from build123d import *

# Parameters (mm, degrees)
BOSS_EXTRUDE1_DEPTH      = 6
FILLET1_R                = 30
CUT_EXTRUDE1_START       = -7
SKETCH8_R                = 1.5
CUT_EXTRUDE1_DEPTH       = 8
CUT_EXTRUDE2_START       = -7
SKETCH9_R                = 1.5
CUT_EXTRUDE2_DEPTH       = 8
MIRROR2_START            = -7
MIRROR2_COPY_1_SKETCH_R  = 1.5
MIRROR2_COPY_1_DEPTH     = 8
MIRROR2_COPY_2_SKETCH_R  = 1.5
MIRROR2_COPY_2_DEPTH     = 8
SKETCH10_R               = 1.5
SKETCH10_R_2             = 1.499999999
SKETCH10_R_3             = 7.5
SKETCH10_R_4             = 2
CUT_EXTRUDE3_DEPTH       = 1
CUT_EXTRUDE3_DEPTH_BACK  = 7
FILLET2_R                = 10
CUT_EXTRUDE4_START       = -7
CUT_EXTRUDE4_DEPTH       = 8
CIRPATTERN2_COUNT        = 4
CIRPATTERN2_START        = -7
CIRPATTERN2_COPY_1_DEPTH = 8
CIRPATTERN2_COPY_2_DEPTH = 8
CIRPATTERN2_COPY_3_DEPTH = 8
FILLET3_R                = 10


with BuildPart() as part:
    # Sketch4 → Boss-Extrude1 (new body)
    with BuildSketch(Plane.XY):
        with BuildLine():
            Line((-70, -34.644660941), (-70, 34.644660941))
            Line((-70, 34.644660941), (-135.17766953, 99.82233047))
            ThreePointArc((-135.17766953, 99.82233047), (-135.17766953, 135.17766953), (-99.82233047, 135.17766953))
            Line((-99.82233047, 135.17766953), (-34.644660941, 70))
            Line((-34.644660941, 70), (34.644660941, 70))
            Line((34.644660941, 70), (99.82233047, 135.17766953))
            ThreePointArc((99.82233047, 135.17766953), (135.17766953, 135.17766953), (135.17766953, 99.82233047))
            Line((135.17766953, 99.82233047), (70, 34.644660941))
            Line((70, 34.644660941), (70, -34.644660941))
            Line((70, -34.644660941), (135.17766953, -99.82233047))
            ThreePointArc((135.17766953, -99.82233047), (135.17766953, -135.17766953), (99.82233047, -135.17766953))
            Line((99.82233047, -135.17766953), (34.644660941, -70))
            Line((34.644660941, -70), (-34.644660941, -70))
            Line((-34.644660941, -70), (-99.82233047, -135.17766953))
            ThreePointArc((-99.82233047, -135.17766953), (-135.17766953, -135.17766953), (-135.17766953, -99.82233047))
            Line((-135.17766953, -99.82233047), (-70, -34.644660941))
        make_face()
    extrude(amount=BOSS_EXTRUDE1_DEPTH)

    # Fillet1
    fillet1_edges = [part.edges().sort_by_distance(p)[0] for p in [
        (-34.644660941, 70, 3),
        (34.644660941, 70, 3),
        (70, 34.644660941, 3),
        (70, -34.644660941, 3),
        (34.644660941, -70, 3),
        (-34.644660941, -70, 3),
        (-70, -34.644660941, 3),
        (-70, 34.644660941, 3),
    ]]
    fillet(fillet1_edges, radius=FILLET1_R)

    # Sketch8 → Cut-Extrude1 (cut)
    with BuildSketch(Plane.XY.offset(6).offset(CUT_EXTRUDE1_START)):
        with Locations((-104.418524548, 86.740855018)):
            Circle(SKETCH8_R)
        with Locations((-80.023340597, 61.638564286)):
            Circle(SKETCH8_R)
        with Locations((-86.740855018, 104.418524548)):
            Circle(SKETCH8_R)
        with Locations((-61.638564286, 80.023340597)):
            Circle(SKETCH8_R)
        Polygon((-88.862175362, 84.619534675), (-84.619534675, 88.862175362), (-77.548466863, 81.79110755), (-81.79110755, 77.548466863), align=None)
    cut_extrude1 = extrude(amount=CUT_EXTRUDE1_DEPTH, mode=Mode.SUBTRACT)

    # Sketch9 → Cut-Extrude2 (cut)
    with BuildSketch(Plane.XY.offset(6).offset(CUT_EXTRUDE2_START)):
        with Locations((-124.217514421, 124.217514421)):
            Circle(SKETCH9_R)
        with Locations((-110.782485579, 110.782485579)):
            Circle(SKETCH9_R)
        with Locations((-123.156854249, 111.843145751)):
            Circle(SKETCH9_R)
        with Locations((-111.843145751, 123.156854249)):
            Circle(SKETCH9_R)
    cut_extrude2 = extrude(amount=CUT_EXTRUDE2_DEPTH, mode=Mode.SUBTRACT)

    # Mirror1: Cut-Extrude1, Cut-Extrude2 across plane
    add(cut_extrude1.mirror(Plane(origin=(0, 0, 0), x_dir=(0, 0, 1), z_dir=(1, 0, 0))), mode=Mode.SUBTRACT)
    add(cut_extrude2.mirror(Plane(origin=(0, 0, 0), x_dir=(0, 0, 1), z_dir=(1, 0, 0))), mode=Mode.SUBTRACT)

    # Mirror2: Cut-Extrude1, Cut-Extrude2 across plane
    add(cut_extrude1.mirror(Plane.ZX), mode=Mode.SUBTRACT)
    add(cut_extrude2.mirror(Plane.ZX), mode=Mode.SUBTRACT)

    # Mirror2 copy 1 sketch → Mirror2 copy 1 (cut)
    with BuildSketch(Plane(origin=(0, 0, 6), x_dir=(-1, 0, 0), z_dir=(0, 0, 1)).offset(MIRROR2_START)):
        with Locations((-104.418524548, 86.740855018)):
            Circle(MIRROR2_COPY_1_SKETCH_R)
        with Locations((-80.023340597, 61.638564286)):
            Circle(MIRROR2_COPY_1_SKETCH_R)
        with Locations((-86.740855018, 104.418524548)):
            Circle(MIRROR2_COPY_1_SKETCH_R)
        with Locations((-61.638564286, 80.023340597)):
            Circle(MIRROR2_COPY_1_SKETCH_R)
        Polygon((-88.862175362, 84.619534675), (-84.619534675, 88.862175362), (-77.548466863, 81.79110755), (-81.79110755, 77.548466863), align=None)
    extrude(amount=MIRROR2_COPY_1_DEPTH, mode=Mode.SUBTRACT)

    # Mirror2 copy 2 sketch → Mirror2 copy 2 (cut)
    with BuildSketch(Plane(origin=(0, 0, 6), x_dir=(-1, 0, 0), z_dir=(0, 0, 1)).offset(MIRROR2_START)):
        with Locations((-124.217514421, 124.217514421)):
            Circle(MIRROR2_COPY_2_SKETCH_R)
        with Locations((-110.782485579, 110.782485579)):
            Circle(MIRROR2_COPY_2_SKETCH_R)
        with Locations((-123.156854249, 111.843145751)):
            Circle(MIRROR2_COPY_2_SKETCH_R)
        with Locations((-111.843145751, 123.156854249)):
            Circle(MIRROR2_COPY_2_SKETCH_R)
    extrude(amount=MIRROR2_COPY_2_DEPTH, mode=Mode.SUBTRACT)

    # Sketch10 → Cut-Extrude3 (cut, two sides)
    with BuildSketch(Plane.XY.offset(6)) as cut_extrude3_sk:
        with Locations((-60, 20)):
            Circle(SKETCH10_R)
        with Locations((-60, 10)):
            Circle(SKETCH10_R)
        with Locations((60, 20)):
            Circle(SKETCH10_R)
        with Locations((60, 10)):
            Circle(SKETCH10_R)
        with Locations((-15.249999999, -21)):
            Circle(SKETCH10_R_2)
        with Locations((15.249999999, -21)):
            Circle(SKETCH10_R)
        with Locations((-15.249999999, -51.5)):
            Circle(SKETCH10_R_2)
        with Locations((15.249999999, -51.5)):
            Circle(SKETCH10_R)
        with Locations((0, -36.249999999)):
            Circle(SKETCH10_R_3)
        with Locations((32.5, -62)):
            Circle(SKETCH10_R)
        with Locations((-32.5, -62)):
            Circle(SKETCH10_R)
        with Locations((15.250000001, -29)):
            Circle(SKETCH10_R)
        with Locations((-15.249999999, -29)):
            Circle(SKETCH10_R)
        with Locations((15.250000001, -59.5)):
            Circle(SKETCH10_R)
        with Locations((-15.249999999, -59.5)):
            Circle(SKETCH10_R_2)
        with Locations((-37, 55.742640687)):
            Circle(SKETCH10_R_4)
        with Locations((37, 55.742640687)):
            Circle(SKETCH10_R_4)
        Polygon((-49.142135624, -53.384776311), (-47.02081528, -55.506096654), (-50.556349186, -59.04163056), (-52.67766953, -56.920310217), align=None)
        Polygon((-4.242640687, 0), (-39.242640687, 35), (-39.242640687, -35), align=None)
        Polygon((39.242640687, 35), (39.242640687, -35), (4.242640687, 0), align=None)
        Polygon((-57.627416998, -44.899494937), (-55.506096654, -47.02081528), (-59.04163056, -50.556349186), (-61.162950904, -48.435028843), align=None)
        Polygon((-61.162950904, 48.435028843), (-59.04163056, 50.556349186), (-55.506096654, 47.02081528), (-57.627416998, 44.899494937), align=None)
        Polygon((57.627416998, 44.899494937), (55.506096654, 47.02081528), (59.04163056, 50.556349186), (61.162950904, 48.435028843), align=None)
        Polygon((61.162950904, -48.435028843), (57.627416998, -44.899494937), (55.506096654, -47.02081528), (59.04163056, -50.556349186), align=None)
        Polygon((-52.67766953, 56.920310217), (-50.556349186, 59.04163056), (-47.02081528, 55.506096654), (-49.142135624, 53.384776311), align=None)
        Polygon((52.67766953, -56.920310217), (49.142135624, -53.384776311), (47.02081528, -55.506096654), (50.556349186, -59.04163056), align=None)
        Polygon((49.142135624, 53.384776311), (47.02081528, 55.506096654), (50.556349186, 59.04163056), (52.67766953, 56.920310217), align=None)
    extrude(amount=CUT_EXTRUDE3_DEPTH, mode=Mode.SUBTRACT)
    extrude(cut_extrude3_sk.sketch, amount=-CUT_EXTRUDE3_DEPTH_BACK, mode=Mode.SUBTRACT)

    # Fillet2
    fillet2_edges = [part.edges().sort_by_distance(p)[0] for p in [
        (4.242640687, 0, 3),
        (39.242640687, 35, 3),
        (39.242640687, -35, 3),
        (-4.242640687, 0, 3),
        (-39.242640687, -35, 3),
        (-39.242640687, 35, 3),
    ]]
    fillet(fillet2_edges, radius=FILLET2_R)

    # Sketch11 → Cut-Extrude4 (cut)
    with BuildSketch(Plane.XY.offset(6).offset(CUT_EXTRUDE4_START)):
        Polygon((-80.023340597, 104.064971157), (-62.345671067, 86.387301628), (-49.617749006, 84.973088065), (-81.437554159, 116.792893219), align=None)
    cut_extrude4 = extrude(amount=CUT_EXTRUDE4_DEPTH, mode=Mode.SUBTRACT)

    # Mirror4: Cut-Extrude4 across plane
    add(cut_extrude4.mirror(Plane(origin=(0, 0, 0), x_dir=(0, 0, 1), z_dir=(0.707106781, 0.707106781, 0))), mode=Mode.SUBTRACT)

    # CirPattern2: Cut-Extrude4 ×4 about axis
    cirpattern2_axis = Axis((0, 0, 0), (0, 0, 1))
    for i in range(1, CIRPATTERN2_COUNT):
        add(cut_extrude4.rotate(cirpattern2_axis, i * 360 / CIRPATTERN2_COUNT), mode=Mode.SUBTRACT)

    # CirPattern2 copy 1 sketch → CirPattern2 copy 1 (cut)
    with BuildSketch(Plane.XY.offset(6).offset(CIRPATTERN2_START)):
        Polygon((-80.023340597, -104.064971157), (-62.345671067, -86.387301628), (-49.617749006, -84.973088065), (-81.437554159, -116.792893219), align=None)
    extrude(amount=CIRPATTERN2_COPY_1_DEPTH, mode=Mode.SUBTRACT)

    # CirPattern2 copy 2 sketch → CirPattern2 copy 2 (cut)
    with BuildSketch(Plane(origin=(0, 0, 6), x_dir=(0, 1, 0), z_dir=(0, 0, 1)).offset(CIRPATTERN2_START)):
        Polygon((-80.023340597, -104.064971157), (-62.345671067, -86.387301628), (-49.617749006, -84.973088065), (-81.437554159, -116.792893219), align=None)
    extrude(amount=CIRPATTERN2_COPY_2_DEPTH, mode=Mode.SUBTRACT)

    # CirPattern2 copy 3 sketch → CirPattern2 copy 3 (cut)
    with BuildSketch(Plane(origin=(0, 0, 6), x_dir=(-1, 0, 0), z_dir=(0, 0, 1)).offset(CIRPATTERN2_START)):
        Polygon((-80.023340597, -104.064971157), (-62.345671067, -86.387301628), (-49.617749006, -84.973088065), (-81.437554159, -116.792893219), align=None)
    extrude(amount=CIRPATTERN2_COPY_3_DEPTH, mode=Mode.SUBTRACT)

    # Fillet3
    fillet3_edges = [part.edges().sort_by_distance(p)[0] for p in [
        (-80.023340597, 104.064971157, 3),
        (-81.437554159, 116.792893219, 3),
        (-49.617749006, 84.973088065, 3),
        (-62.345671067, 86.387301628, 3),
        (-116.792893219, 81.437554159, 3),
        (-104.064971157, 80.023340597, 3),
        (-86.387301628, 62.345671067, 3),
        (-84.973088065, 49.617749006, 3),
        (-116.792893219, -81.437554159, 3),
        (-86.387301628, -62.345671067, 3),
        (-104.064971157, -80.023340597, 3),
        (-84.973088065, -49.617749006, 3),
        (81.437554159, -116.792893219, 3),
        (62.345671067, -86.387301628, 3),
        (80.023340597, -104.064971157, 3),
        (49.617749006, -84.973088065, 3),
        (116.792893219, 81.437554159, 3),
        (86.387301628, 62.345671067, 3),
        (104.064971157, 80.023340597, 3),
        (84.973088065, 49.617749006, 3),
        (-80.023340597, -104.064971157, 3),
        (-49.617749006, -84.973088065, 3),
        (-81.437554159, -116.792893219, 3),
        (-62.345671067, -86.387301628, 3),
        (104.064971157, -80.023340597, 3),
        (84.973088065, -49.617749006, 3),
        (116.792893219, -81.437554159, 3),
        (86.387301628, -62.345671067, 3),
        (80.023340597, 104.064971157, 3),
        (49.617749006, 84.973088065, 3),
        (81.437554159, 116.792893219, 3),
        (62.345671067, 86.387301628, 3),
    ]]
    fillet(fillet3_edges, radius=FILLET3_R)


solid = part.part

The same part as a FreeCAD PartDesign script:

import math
import FreeCAD as App
import Part
import Sketcher
from FreeCAD import Vector
Q = App.Units.Quantity


def edges_at(feature, points):
    """Names of the edges that pass closest to the given points."""
    edges = feature.Shape.Edges
    near = lambda p: min(range(len(edges)), key=lambda i: edges[i].distToShape(Part.Vertex(*p))[0])
    return sorted({f"Edge{near(p) + 1}" for p in points})

doc = App.newDocument("Part")
body = doc.addObject("PartDesign::Body", "Body")

sketch1 = body.newObject("Sketcher::SketchObject", "Sketch")
sketch1.AttachmentSupport = (doc.getObject("XY_Plane"), [""])
sketch1.MapMode = "FlatFace"
sketch1.addGeometry([
    Part.LineSegment(Vector(-70, 35, 0), Vector(-70, -35, 0)),
    Part.LineSegment(Vector(-70, -35, 0), Vector(-135, -100, 0)),
    Part.ArcOfCircle(Part.Circle(Vector(-118, -118, 0), Vector(0, 0, 1), 25), math.radians(135), math.radians(315)),
    Part.LineSegment(Vector(-100, -135, 0), Vector(-35, -70, 0)),
    Part.LineSegment(Vector(-35, -70, 0), Vector(35, -70, 0)),
    Part.LineSegment(Vector(35, -70, 0), Vector(100, -135, 0)),
    Part.ArcOfCircle(Part.Circle(Vector(118, -118, 0), Vector(0, 0, 1), 25), math.radians(-135), math.radians(45)),
    Part.LineSegment(Vector(135, -100, 0), Vector(70, -35, 0)),
    Part.LineSegment(Vector(70, -35, 0), Vector(70, 35, 0)),
    Part.LineSegment(Vector(70, 35, 0), Vector(135, 100, 0)),
    Part.ArcOfCircle(Part.Circle(Vector(118, 118, 0), Vector(0, 0, 1), 25), math.radians(-45), math.radians(135)),
    Part.LineSegment(Vector(100, 135, 0), Vector(35, 70, 0)),
    Part.LineSegment(Vector(35, 70, 0), Vector(-35, 70, 0)),
    Part.LineSegment(Vector(-35, 70, 0), Vector(-100, 135, 0)),
    Part.ArcOfCircle(Part.Circle(Vector(-118, 118, 0), Vector(0, 0, 1), 25), math.radians(45), math.radians(225)),
    Part.LineSegment(Vector(-135, 100, 0), Vector(-70, 35, 0)),
], False)
sketch1.addConstraint([
    Sketcher.Constraint("Coincident", 0, 2, 1, 1),
    Sketcher.Constraint("Tangent", 1, 2, 2, 1),
    Sketcher.Constraint("Tangent", 2, 2, 3, 1),
    Sketcher.Constraint("Coincident", 3, 2, 4, 1),
    Sketcher.Constraint("Coincident", 4, 2, 5, 1),
    Sketcher.Constraint("Tangent", 5, 2, 6, 1),
    Sketcher.Constraint("Tangent", 6, 2, 7, 1),
    Sketcher.Constraint("Coincident", 7, 2, 8, 1),
    Sketcher.Constraint("Coincident", 8, 2, 9, 1),
    Sketcher.Constraint("Tangent", 9, 2, 10, 1),
    Sketcher.Constraint("Tangent", 10, 2, 11, 1),
    Sketcher.Constraint("Coincident", 11, 2, 12, 1),
    Sketcher.Constraint("Coincident", 12, 2, 13, 1),
    Sketcher.Constraint("Tangent", 13, 2, 14, 1),
    Sketcher.Constraint("Tangent", 14, 2, 15, 1),
    Sketcher.Constraint("Coincident", 15, 2, 0, 1),
    Sketcher.Constraint("Vertical", 0),
    Sketcher.Constraint("Horizontal", 4),
    Sketcher.Constraint("Vertical", 8),
    Sketcher.Constraint("Horizontal", 12),
    Sketcher.Constraint("Equal", 2, 6),
    Sketcher.Constraint("Equal", 6, 10),
    Sketcher.Constraint("Equal", 10, 14),
    Sketcher.Constraint("Symmetric", 2, 3, 10, 3, -1, 1),
    Sketcher.Constraint("Symmetric", 6, 3, 14, 3, -1, 1),
    Sketcher.Constraint("Symmetric", 0, 2, 8, 2, -1, 1),
    Sketcher.Constraint("Symmetric", 3, 2, 11, 2, -1, 1),
    Sketcher.Constraint("Symmetric", 2, 3, 6, 3, -2),
    Sketcher.Constraint("Parallel", 1, 3),
    Sketcher.Constraint("Perpendicular", 3, 5),
    Sketcher.Constraint("Parallel", 5, 7),
    Sketcher.Constraint("Perpendicular", 11, 13),
    Sketcher.Constraint("Parallel", 13, 15),
    Sketcher.Constraint("Horizontal", 2, 2, 5, 2),
    Sketcher.Constraint("Equal", 12, 0),
    Sketcher.Constraint("Equal", 1, 3),
    Sketcher.Constraint("Radius", 2, Q("25 mm")),
    Sketcher.Constraint("DistanceX", 0, 2, -1, 1, Q("70 mm")),
    Sketcher.Constraint("DistanceX", 2, 3, 6, 3, Q("235 mm")),
])
pad1 = body.newObject("PartDesign::Pad", "Pad")
pad1.Profile = sketch1
pad1.Length = 6
doc.recompute()

fillet = body.newObject("PartDesign::Fillet", "Fillet")
fillet.Base = (pad1, edges_at(pad1, [
    (-34.645, 70, 3),
    (34.645, 70, 3),
    (70, 34.645, 3),
    (70, -34.645, 3),
    (34.645, -70, 3),
    (-34.645, -70, 3),
    (-70, -34.645, 3),
    (-70, 34.645, 3),
]))
fillet.Radius = 30

sketch2 = body.newObject("Sketcher::SketchObject", "Sketch001")
sketch2.AttachmentSupport = (doc.getObject("XY_Plane"), [""])
sketch2.MapMode = "FlatFace"
sketch2.AttachmentOffset = App.Placement(Vector(0, 0, -1), App.Rotation())
sketch2.addGeometry([
    Part.Circle(Vector(-104.4, 86.7, 0), Vector(0, 0, 1), 1.5),
    Part.Circle(Vector(-80, 61.6, 0), Vector(0, 0, 1), 1.5),
    Part.Circle(Vector(-86.7, 104.4, 0), Vector(0, 0, 1), 1.5),
    Part.Circle(Vector(-61.6, 80, 0), Vector(0, 0, 1), 1.5),
    Part.LineSegment(Vector(-84.6, 88.9, 0), Vector(-88.9, 84.6, 0)),
    Part.LineSegment(Vector(-88.9, 84.6, 0), Vector(-81.8, 77.5, 0)),
    Part.LineSegment(Vector(-81.8, 77.5, 0), Vector(-77.5, 81.8, 0)),
    Part.LineSegment(Vector(-77.5, 81.8, 0), Vector(-84.6, 88.9, 0)),
], False)
sketch2.addConstraint([
    Sketcher.Constraint("Coincident", 4, 2, 5, 1),
    Sketcher.Constraint("Coincident", 5, 2, 6, 1),
    Sketcher.Constraint("Coincident", 6, 2, 7, 1),
    Sketcher.Constraint("Coincident", 7, 2, 4, 1),
    Sketcher.Constraint("Equal", 0, 1),
    Sketcher.Constraint("Equal", 1, 2),
    Sketcher.Constraint("Equal", 2, 3),
    Sketcher.Constraint("Perpendicular", 4, 5),
    Sketcher.Constraint("Perpendicular", 5, 6),
    Sketcher.Constraint("Perpendicular", 6, 7),
    Sketcher.Constraint("Diameter", 0, Q("3 mm")),
    Sketcher.Constraint("Angle", 4, Q("-135 deg")),
    Sketcher.Constraint("Distance", 4, Q("6 mm")),
    Sketcher.Constraint("Distance", 5, Q("10 mm")),
    Sketcher.Constraint("DistanceX", 1, 3, -1, 1, Q("80.023341 mm")),
    Sketcher.Constraint("DistanceY", -1, 1, 3, 3, Q("80.023341 mm")),
    Sketcher.Constraint("DistanceY", 1, 3, 0, 3, Q("25.102291 mm")),
    Sketcher.Constraint("DistanceX", 0, 3, 2, 3, Q("17.67767 mm")),
    Sketcher.Constraint("DistanceY", 0, 3, 2, 3, Q("17.67767 mm")),
    Sketcher.Constraint("DistanceX", 2, 3, 3, 3, Q("25.102291 mm")),
    Sketcher.Constraint("DistanceX", 0, 3, 4, 2, Q("15.556349 mm")),
    Sketcher.Constraint("DistanceY", 4, 2, 0, 3, Q("2.12132 mm")),
    Sketcher.Constraint("DistanceX", 0, 3, -1, 1, Q("104.418525 mm")),
    Sketcher.Constraint("DistanceY", -1, 1, 0, 3, Q("86.740855 mm")),
])
pocket1 = body.newObject("PartDesign::Pocket", "Pocket")
pocket1.Profile = sketch2
pocket1.Length = 8
pocket1.Reversed = True

sketch3 = body.newObject("Sketcher::SketchObject", "Sketch002")
sketch3.AttachmentSupport = (doc.getObject("XY_Plane"), [""])
sketch3.MapMode = "FlatFace"
sketch3.AttachmentOffset = App.Placement(Vector(0, 0, -1), App.Rotation())
sketch3.addGeometry([
    Part.Circle(Vector(-124.2, 124.2, 0), Vector(0, 0, 1), 1.5),
    Part.Circle(Vector(-110.8, 110.8, 0), Vector(0, 0, 1), 1.5),
    Part.Circle(Vector(-123.2, 111.8, 0), Vector(0, 0, 1), 1.5),
    Part.Circle(Vector(-111.8, 123.2, 0), Vector(0, 0, 1), 1.5),
], False)
sketch3.addConstraint([
    Sketcher.Constraint("Equal", 0, 1),
    Sketcher.Constraint("Equal", 1, 2),
    Sketcher.Constraint("Equal", 2, 3),
    Sketcher.Constraint("Diameter", 0, Q("3 mm")),
    Sketcher.Constraint("DistanceX", 0, 3, 1, 3, Q("13.435029 mm")),
    Sketcher.Constraint("DistanceY", 1, 3, 0, 3, Q("13.435029 mm")),
    Sketcher.Constraint("DistanceX", 0, 3, 2, 3, Q("1.06066 mm")),
    Sketcher.Constraint("DistanceY", 2, 3, 0, 3, Q("12.374369 mm")),
    Sketcher.Constraint("DistanceX", 0, 3, 3, 3, Q("12.374369 mm")),
    Sketcher.Constraint("DistanceY", 3, 3, 0, 3, Q("1.06066 mm")),
    Sketcher.Constraint("DistanceX", 0, 3, -1, 1, Q("124.217514 mm")),
    Sketcher.Constraint("DistanceY", -1, 1, 0, 3, Q("124.217514 mm")),
])
pocket2 = body.newObject("PartDesign::Pocket", "Pocket001")
pocket2.Profile = sketch3
pocket2.Length = 8
pocket2.Reversed = True
doc.recompute()

mirrored = body.newObject("PartDesign::Mirrored", "Mirrored")
mirrored.Originals = [pocket1, pocket2]
mirrored.MirrorPlane = (doc.getObject("YZ_Plane"), [""])
body.Tip = mirrored
doc.recompute()

mirrored2 = body.newObject("PartDesign::Mirrored", "Mirrored001")
mirrored2.Originals = [pocket1, pocket2]
mirrored2.MirrorPlane = (doc.getObject("XZ_Plane"), [""])
body.Tip = mirrored2

sketch4 = body.newObject("Sketcher::SketchObject", "Sketch003")
sketch4.AttachmentSupport = (doc.getObject("XY_Plane"), [""])
sketch4.MapMode = "FlatFace"
sketch4.AttachmentOffset = App.Placement(Vector(0, 0, -1), App.Rotation())
sketch4.addGeometry([
    Part.Circle(Vector(104.4, -86.7, 0), Vector(0, 0, 1), 1.5),
    Part.Circle(Vector(80, -61.6, 0), Vector(0, 0, 1), 1.5),
    Part.Circle(Vector(86.7, -104.4, 0), Vector(0, 0, 1), 1.5),
    Part.Circle(Vector(61.6, -80, 0), Vector(0, 0, 1), 1.5),
    Part.LineSegment(Vector(84.6, -88.9, 0), Vector(88.9, -84.6, 0)),
    Part.LineSegment(Vector(88.9, -84.6, 0), Vector(81.8, -77.5, 0)),
    Part.LineSegment(Vector(81.8, -77.5, 0), Vector(77.5, -81.8, 0)),
    Part.LineSegment(Vector(77.5, -81.8, 0), Vector(84.6, -88.9, 0)),
], False)
sketch4.addConstraint([
    Sketcher.Constraint("Coincident", 4, 2, 5, 1),
    Sketcher.Constraint("Coincident", 5, 2, 6, 1),
    Sketcher.Constraint("Coincident", 6, 2, 7, 1),
    Sketcher.Constraint("Coincident", 7, 2, 4, 1),
    Sketcher.Constraint("Equal", 0, 1),
    Sketcher.Constraint("Equal", 1, 2),
    Sketcher.Constraint("Equal", 2, 3),
    Sketcher.Constraint("Perpendicular", 4, 5),
    Sketcher.Constraint("Perpendicular", 5, 6),
    Sketcher.Constraint("Perpendicular", 6, 7),
    Sketcher.Constraint("Diameter", 0, Q("3 mm")),
    Sketcher.Constraint("Angle", 4, Q("45 deg")),
    Sketcher.Constraint("Distance", 4, Q("6 mm")),
    Sketcher.Constraint("Distance", 5, Q("10 mm")),
    Sketcher.Constraint("DistanceX", -1, 1, 1, 3, Q("80.023341 mm")),
    Sketcher.Constraint("DistanceY", 3, 3, -1, 1, Q("80.023341 mm")),
    Sketcher.Constraint("DistanceY", 0, 3, 1, 3, Q("25.102291 mm")),
    Sketcher.Constraint("DistanceX", 2, 3, 0, 3, Q("17.67767 mm")),
    Sketcher.Constraint("DistanceY", 2, 3, 0, 3, Q("17.67767 mm")),
    Sketcher.Constraint("DistanceX", 3, 3, 2, 3, Q("25.102291 mm")),
    Sketcher.Constraint("DistanceX", 4, 2, 0, 3, Q("15.556349 mm")),
    Sketcher.Constraint("DistanceY", 0, 3, 4, 2, Q("2.12132 mm")),
    Sketcher.Constraint("DistanceX", -1, 1, 0, 3, Q("104.418525 mm")),
    Sketcher.Constraint("DistanceY", 0, 3, -1, 1, Q("86.740855 mm")),
])
pocket3 = body.newObject("PartDesign::Pocket", "Pocket002")
pocket3.Profile = sketch4
pocket3.Length = 8
pocket3.Reversed = True

sketch5 = body.newObject("Sketcher::SketchObject", "Sketch004")
sketch5.AttachmentSupport = (doc.getObject("XY_Plane"), [""])
sketch5.MapMode = "FlatFace"
sketch5.AttachmentOffset = App.Placement(Vector(0, 0, -1), App.Rotation())
sketch5.addGeometry([
    Part.Circle(Vector(124.2, -124.2, 0), Vector(0, 0, 1), 1.5),
    Part.Circle(Vector(110.8, -110.8, 0), Vector(0, 0, 1), 1.5),
    Part.Circle(Vector(123.2, -111.8, 0), Vector(0, 0, 1), 1.5),
    Part.Circle(Vector(111.8, -123.2, 0), Vector(0, 0, 1), 1.5),
], False)
sketch5.addConstraint([
    Sketcher.Constraint("Equal", 0, 1),
    Sketcher.Constraint("Equal", 1, 2),
    Sketcher.Constraint("Equal", 2, 3),
    Sketcher.Constraint("Diameter", 0, Q("3 mm")),
    Sketcher.Constraint("DistanceX", 1, 3, 0, 3, Q("13.435029 mm")),
    Sketcher.Constraint("DistanceY", 0, 3, 1, 3, Q("13.435029 mm")),
    Sketcher.Constraint("DistanceX", 2, 3, 0, 3, Q("1.06066 mm")),
    Sketcher.Constraint("DistanceY", 0, 3, 2, 3, Q("12.374369 mm")),
    Sketcher.Constraint("DistanceX", 3, 3, 0, 3, Q("12.374369 mm")),
    Sketcher.Constraint("DistanceY", 0, 3, 3, 3, Q("1.06066 mm")),
    Sketcher.Constraint("DistanceX", -1, 1, 0, 3, Q("124.217514 mm")),
    Sketcher.Constraint("DistanceY", 0, 3, -1, 1, Q("124.217514 mm")),
])
pocket4 = body.newObject("PartDesign::Pocket", "Pocket003")
pocket4.Profile = sketch5
pocket4.Length = 8
pocket4.Reversed = True

sketch6 = body.newObject("Sketcher::SketchObject", "Sketch005")
sketch6.AttachmentSupport = (doc.getObject("XY_Plane"), [""])
sketch6.MapMode = "FlatFace"
sketch6.AttachmentOffset = App.Placement(Vector(0, 0, 6), App.Rotation())
sketch6.addGeometry([
    Part.Circle(Vector(-60, 20, 0), Vector(0, 0, 1), 1.5),
    Part.Circle(Vector(-60, 10, 0), Vector(0, 0, 1), 1.5),
    Part.Circle(Vector(60, 20, 0), Vector(0, 0, 1), 1.5),
    Part.Circle(Vector(60, 10, 0), Vector(0, 0, 1), 1.5),
    Part.Circle(Vector(-15.2, -21, 0), Vector(0, 0, 1), 1.5),
    Part.Circle(Vector(15.2, -21, 0), Vector(0, 0, 1), 1.5),
    Part.Circle(Vector(-15.2, -51.5, 0), Vector(0, 0, 1), 1.5),
    Part.Circle(Vector(15.2, -51.5, 0), Vector(0, 0, 1), 1.5),
    Part.Circle(Vector(0, -36.2, 0), Vector(0, 0, 1), 7.5),
    Part.Circle(Vector(32.5, -62, 0), Vector(0, 0, 1), 1.5),
    Part.Circle(Vector(-32.5, -62, 0), Vector(0, 0, 1), 1.5),
    Part.Circle(Vector(15.3, -29, 0), Vector(0, 0, 1), 1.5),
    Part.Circle(Vector(-15.2, -29, 0), Vector(0, 0, 1), 1.5),
    Part.Circle(Vector(15.3, -59.5, 0), Vector(0, 0, 1), 1.5),
    Part.Circle(Vector(-15.2, -59.5, 0), Vector(0, 0, 1), 1.5),
    Part.Circle(Vector(-37, 55.7, 0), Vector(0, 0, 1), 2),
    Part.Circle(Vector(37, 55.7, 0), Vector(0, 0, 1), 2),
    Part.LineSegment(Vector(-47, -55.5, 0), Vector(-49.1, -53.4, 0)),
    Part.LineSegment(Vector(-49.1, -53.4, 0), Vector(-52.7, -56.9, 0)),
    Part.LineSegment(Vector(-52.7, -56.9, 0), Vector(-50.6, -59, 0)),
    Part.LineSegment(Vector(-50.6, -59, 0), Vector(-47, -55.5, 0)),
    Part.LineSegment(Vector(-4.2, 0, 0), Vector(-39.2, 35, 0)),
    Part.LineSegment(Vector(-39.2, 35, 0), Vector(-39.2, -35, 0)),
    Part.LineSegment(Vector(-39.2, -35, 0), Vector(-4.2, 0, 0)),
    Part.LineSegment(Vector(39.2, -35, 0), Vector(39.2, 35, 0)),
    Part.LineSegment(Vector(39.2, 35, 0), Vector(4.2, 0, 0)),
    Part.LineSegment(Vector(4.2, 0, 0), Vector(39.2, -35, 0)),
    Part.LineSegment(Vector(-55.5, -47, 0), Vector(-57.6, -44.9, 0)),
    Part.LineSegment(Vector(-57.6, -44.9, 0), Vector(-61.2, -48.4, 0)),
    Part.LineSegment(Vector(-61.2, -48.4, 0), Vector(-59, -50.6, 0)),
    Part.LineSegment(Vector(-59, -50.6, 0), Vector(-55.5, -47, 0)),
    Part.LineSegment(Vector(-59, 50.6, 0), Vector(-61.2, 48.4, 0)),
    Part.LineSegment(Vector(-61.2, 48.4, 0), Vector(-57.6, 44.9, 0)),
    Part.LineSegment(Vector(-57.6, 44.9, 0), Vector(-55.5, 47, 0)),
    Part.LineSegment(Vector(-55.5, 47, 0), Vector(-59, 50.6, 0)),
    Part.LineSegment(Vector(55.5, 47, 0), Vector(57.6, 44.9, 0)),
    Part.LineSegment(Vector(57.6, 44.9, 0), Vector(61.2, 48.4, 0)),
    Part.LineSegment(Vector(61.2, 48.4, 0), Vector(59, 50.6, 0)),
    Part.LineSegment(Vector(59, 50.6, 0), Vector(55.5, 47, 0)),
    Part.LineSegment(Vector(61.2, -48.4, 0), Vector(57.6, -44.9, 0)),
    Part.LineSegment(Vector(57.6, -44.9, 0), Vector(55.5, -47, 0)),
    Part.LineSegment(Vector(55.5, -47, 0), Vector(59, -50.6, 0)),
    Part.LineSegment(Vector(59, -50.6, 0), Vector(61.2, -48.4, 0)),
    Part.LineSegment(Vector(-50.6, 59, 0), Vector(-52.7, 56.9, 0)),
    Part.LineSegment(Vector(-52.7, 56.9, 0), Vector(-49.1, 53.4, 0)),
    Part.LineSegment(Vector(-49.1, 53.4, 0), Vector(-47, 55.5, 0)),
    Part.LineSegment(Vector(-47, 55.5, 0), Vector(-50.6, 59, 0)),
    Part.LineSegment(Vector(52.7, -56.9, 0), Vector(49.1, -53.4, 0)),
    Part.LineSegment(Vector(49.1, -53.4, 0), Vector(47, -55.5, 0)),
    Part.LineSegment(Vector(47, -55.5, 0), Vector(50.6, -59, 0)),
    Part.LineSegment(Vector(50.6, -59, 0), Vector(52.7, -56.9, 0)),
    Part.LineSegment(Vector(47, 55.5, 0), Vector(49.1, 53.4, 0)),
    Part.LineSegment(Vector(49.1, 53.4, 0), Vector(52.7, 56.9, 0)),
    Part.LineSegment(Vector(52.7, 56.9, 0), Vector(50.6, 59, 0)),
    Part.LineSegment(Vector(50.6, 59, 0), Vector(47, 55.5, 0)),
], False)
sketch6.addConstraint([
    Sketcher.Constraint("Coincident", 17, 2, 18, 1),
    Sketcher.Constraint("Coincident", 18, 2, 19, 1),
    Sketcher.Constraint("Coincident", 19, 2, 20, 1),
    Sketcher.Constraint("Coincident", 20, 2, 17, 1),
    Sketcher.Constraint("Coincident", 21, 2, 22, 1),
    Sketcher.Constraint("Coincident", 22, 2, 23, 1),
    Sketcher.Constraint("Coincident", 23, 2, 21, 1),
    Sketcher.Constraint("Coincident", 24, 2, 25, 1),
    Sketcher.Constraint("Coincident", 25, 2, 26, 1),
    Sketcher.Constraint("Coincident", 26, 2, 24, 1),
    Sketcher.Constraint("Coincident", 27, 2, 28, 1),
    Sketcher.Constraint("Coincident", 28, 2, 29, 1),
    Sketcher.Constraint("Coincident", 29, 2, 30, 1),
    Sketcher.Constraint("Coincident", 30, 2, 27, 1),
    Sketcher.Constraint("Coincident", 31, 2, 32, 1),
    Sketcher.Constraint("Coincident", 32, 2, 33, 1),
    Sketcher.Constraint("Coincident", 33, 2, 34, 1),
    Sketcher.Constraint("Coincident", 34, 2, 31, 1),
    Sketcher.Constraint("Coincident", 35, 2, 36, 1),
    Sketcher.Constraint("Coincident", 36, 2, 37, 1),
    Sketcher.Constraint("Coincident", 37, 2, 38, 1),
    Sketcher.Constraint("Coincident", 38, 2, 35, 1),
    Sketcher.Constraint("Coincident", 39, 2, 40, 1),
    Sketcher.Constraint("Coincident", 40, 2, 41, 1),
    Sketcher.Constraint("Coincident", 41, 2, 42, 1),
    Sketcher.Constraint("Coincident", 42, 2, 39, 1),
    Sketcher.Constraint("Coincident", 43, 2, 44, 1),
    Sketcher.Constraint("Coincident", 44, 2, 45, 1),
    Sketcher.Constraint("Coincident", 45, 2, 46, 1),
    Sketcher.Constraint("Coincident", 46, 2, 43, 1),
    Sketcher.Constraint("Coincident", 47, 2, 48, 1),
    Sketcher.Constraint("Coincident", 48, 2, 49, 1),
    Sketcher.Constraint("Coincident", 49, 2, 50, 1),
    Sketcher.Constraint("Coincident", 50, 2, 47, 1),
    Sketcher.Constraint("Coincident", 51, 2, 52, 1),
    Sketcher.Constraint("Coincident", 52, 2, 53, 1),
    Sketcher.Constraint("Coincident", 53, 2, 54, 1),
    Sketcher.Constraint("Coincident", 54, 2, 51, 1),
    Sketcher.Constraint("Vertical", 22),
    Sketcher.Constraint("Vertical", 24),
    Sketcher.Constraint("Equal", 0, 1),
    Sketcher.Constraint("Equal", 1, 2),
    Sketcher.Constraint("Equal", 2, 3),
    Sketcher.Constraint("Equal", 3, 4),
    Sketcher.Constraint("Equal", 4, 5),
    Sketcher.Constraint("Equal", 5, 6),
    Sketcher.Constraint("Equal", 6, 7),
    Sketcher.Constraint("Equal", 7, 9),
    Sketcher.Constraint("Equal", 9, 10),
    Sketcher.Constraint("Equal", 10, 11),
    Sketcher.Constraint("Equal", 11, 12),
    Sketcher.Constraint("Equal", 12, 13),
    Sketcher.Constraint("Equal", 13, 14),
    Sketcher.Constraint("Equal", 15, 16),
    Sketcher.Constraint("Symmetric", 22, 2, 24, 2, -1, 1),
    Sketcher.Constraint("Symmetric", 23, 2, 25, 2, -1, 1),
    Sketcher.Constraint("Symmetric", 27, 2, 35, 2, -1, 1),
    Sketcher.Constraint("Symmetric", 28, 2, 36, 2, -1, 1),
    Sketcher.Constraint("Symmetric", 29, 2, 37, 2, -1, 1),
    Sketcher.Constraint("Symmetric", 30, 2, 38, 2, -1, 1),
    Sketcher.Constraint("Symmetric", 32, 2, 39, 2, -1, 1),
    Sketcher.Constraint("Symmetric", 33, 2, 40, 2, -1, 1),
    Sketcher.Constraint("Symmetric", 34, 2, 41, 2, -1, 1),
    Sketcher.Constraint("Symmetric", 31, 2, 42, 2, -1, 1),
    Sketcher.Constraint("Symmetric", 44, 2, 47, 2, -1, 1),
    Sketcher.Constraint("Symmetric", 45, 2, 48, 2, -1, 1),
    Sketcher.Constraint("Symmetric", 46, 2, 49, 2, -1, 1),
    Sketcher.Constraint("Symmetric", 43, 2, 50, 2, -1, 1),
    Sketcher.Constraint("Symmetric", 17, 2, 51, 2, -1, 1),
    Sketcher.Constraint("Symmetric", 18, 2, 52, 2, -1, 1),
    Sketcher.Constraint("Symmetric", 19, 2, 53, 2, -1, 1),
    Sketcher.Constraint("Symmetric", 20, 2, 54, 2, -1, 1),
    Sketcher.Constraint("Symmetric", 0, 3, 2, 3, -2),
    Sketcher.Constraint("Symmetric", 1, 3, 3, 3, -2),
    Sketcher.Constraint("Symmetric", 4, 3, 5, 3, -2),
    Sketcher.Constraint("Symmetric", 6, 3, 7, 3, -2),
    Sketcher.Constraint("Symmetric", 9, 3, 10, 3, -2),
    Sketcher.Constraint("Symmetric", 11, 3, 12, 3, -2),
    Sketcher.Constraint("Symmetric", 13, 3, 14, 3, -2),
    Sketcher.Constraint("Symmetric", 15, 3, 16, 3, -2),
    Sketcher.Constraint("Symmetric", 32, 2, 35, 2, -2),
    Sketcher.Constraint("Symmetric", 31, 2, 36, 2, -2),
    Sketcher.Constraint("Symmetric", 34, 2, 37, 2, -2),
    Sketcher.Constraint("Symmetric", 33, 2, 38, 2, -2),
    Sketcher.Constraint("Symmetric", 17, 2, 47, 2, -2),
    Sketcher.Constraint("Symmetric", 20, 2, 48, 2, -2),
    Sketcher.Constraint("Symmetric", 19, 2, 49, 2, -2),
    Sketcher.Constraint("Symmetric", 18, 2, 50, 2, -2),
    Sketcher.Constraint("PointOnObject", 8, 3, -2),
    Sketcher.Constraint("PointOnObject", 23, 2, -1),
    Sketcher.Constraint("Perpendicular", 17, 18),
    Sketcher.Constraint("Perpendicular", 18, 19),
    Sketcher.Constraint("Perpendicular", 19, 20),
    Sketcher.Constraint("Perpendicular", 20, 21),
    Sketcher.Constraint("Perpendicular", 21, 23),
    Sketcher.Constraint("Perpendicular", 25, 26),
    Sketcher.Constraint("Parallel", 26, 27),
    Sketcher.Constraint("Perpendicular", 27, 28),
    Sketcher.Constraint("Perpendicular", 28, 29),
    Sketcher.Constraint("Perpendicular", 29, 30),
    Sketcher.Constraint("Parallel", 30, 31),
    Sketcher.Constraint("Vertical", 0, 3, 1, 3),
    Sketcher.Constraint("Vertical", 4, 3, 6, 3),
    Sketcher.Constraint("Vertical", 7, 3, 11, 3),
    Sketcher.Constraint("Vertical", 11, 3, 13, 3),
    Sketcher.Constraint("Equal", 19, 27),
    Sketcher.Constraint("Equal", 20, 28),
    Sketcher.Constraint("Diameter", 0, Q("3 mm")),
    Sketcher.Constraint("Diameter", 8, Q("15 mm")),
    Sketcher.Constraint("Diameter", 15, Q("4 mm")),
    Sketcher.Constraint("DistanceY", 22, 2, 22, 1, Q("70 mm")),
    Sketcher.Constraint("Distance", 17, Q("3 mm")),
    Sketcher.Constraint("Distance", 18, Q("5 mm")),
    Sketcher.Constraint("DistanceX", 0, 3, -1, 1, Q("60 mm")),
    Sketcher.Constraint("DistanceY", -1, 1, 0, 3, Q("20 mm")),
    Sketcher.Constraint("DistanceY", -1, 1, 1, 3, Q("10 mm")),
    Sketcher.Constraint("DistanceY", 4, 3, -1, 1, Q("21 mm")),
    Sketcher.Constraint("DistanceY", 9, 3, -1, 1, Q("62 mm")),
    Sketcher.Constraint("DistanceY", 11, 3, -1, 1, Q("29 mm")),
    Sketcher.Constraint("DistanceX", 15, 3, -1, 1, Q("37 mm")),
    Sketcher.Constraint("DistanceY", 13, 3, 7, 3, Q("8 mm")),
    Sketcher.Constraint("DistanceY", 6, 3, -1, 1, Q("51.5 mm")),
    Sketcher.Constraint("DistanceX", -1, 1, 9, 3, Q("32.5 mm")),
    Sketcher.Constraint("DistanceX", 4, 3, 5, 3, Q("30.5 mm")),
    Sketcher.Constraint("DistanceY", 8, 3, -1, 1, Q("36.25 mm")),
    Sketcher.Constraint("DistanceX", 27, 2, 20, 2, Q("10.606602 mm")),
    Sketcher.Constraint("DistanceY", 20, 2, 27, 2, Q("10.606602 mm")),
    Sketcher.Constraint("DistanceY", -1, 1, 15, 3, Q("55.742641 mm")),
    Sketcher.Constraint("DistanceX", 18, 2, -1, 1, Q("52.67767 mm")),
    Sketcher.Constraint("DistanceY", 18, 2, -1, 1, Q("56.92031 mm")),
    Sketcher.Constraint("DistanceX", 21, 2, -1, 1, Q("39.242641 mm")),
])
pocket5 = body.newObject("PartDesign::Pocket", "Pocket004")
pocket5.Profile = sketch6
pocket5.Type = "ThroughAll"
pocket5.Midplane = True
doc.recompute()

fillet2 = body.newObject("PartDesign::Fillet", "Fillet001")
fillet2.Base = (pocket5, edges_at(pocket5, [
    (4.243, 0, 3),
    (39.243, 35, 3),
    (39.243, -35, 3),
    (-4.243, 0, 3),
    (-39.243, -35, 3),
    (-39.243, 35, 3),
]))
fillet2.Radius = 10

sketch7 = body.newObject("Sketcher::SketchObject", "Sketch006")
sketch7.AttachmentSupport = (doc.getObject("XY_Plane"), [""])
sketch7.MapMode = "FlatFace"
sketch7.AttachmentOffset = App.Placement(Vector(0, 0, -1), App.Rotation())
sketch7.addGeometry([
    Part.LineSegment(Vector(-80, 104, 0), Vector(-62, 86, 0)),
    Part.LineSegment(Vector(-62, 86, 0), Vector(-50, 85, 0)),
    Part.LineSegment(Vector(-50, 85, 0), Vector(-81, 117, 0)),
    Part.LineSegment(Vector(-81, 117, 0), Vector(-80, 104, 0)),
], False)
sketch7.addConstraint([
    Sketcher.Constraint("Coincident", 0, 2, 1, 1),
    Sketcher.Constraint("Coincident", 1, 2, 2, 1),
    Sketcher.Constraint("Coincident", 2, 2, 3, 1),
    Sketcher.Constraint("Coincident", 3, 2, 0, 1),
    Sketcher.Constraint("Parallel", 0, 2),
    Sketcher.Constraint("Equal", 1, 3),
    Sketcher.Constraint("Angle", 0, Q("-45 deg")),
    Sketcher.Constraint("Distance", 0, Q("25 mm")),
    Sketcher.Constraint("Distance", 2, Q("45 mm")),
    Sketcher.Constraint("DistanceY", -1, 1, 0, 2, Q("86.387302 mm")),
    Sketcher.Constraint("Distance", 1, Q("12.806248 mm")),
    Sketcher.Constraint("DistanceX", 0, 2, -1, 1, Q("62.345671 mm")),
])
pocket6 = body.newObject("PartDesign::Pocket", "Pocket005")
pocket6.Profile = sketch7
pocket6.Length = 8
pocket6.Reversed = True
doc.recompute()

datumplane = body.newObject("PartDesign::Plane", "DatumPlane")
datumplane.Placement = App.Placement(Vector(0, 0, 0), App.Rotation(Vector(0.707106781, -0.707106781, 0), Vector(0, 0, -1), Vector(0.707106781, 0.707106781, 0), "ZXY"))
mirrored3 = body.newObject("PartDesign::Mirrored", "Mirrored002")
mirrored3.Originals = [pocket6]
mirrored3.MirrorPlane = (datumplane, [""])
body.Tip = mirrored3
doc.recompute()

polarpattern = body.newObject("PartDesign::PolarPattern", "PolarPattern")
polarpattern.Originals = [pocket6]
polarpattern.Axis = (doc.getObject("Z_Axis"), [""])
polarpattern.Angle = 360
polarpattern.Occurrences = 4
body.Tip = polarpattern

sketch8 = body.newObject("Sketcher::SketchObject", "Sketch007")
sketch8.AttachmentSupport = (doc.getObject("XY_Plane"), [""])
sketch8.MapMode = "FlatFace"
sketch8.AttachmentOffset = App.Placement(Vector(0, 0, -1), App.Rotation())
sketch8.addGeometry([
    Part.LineSegment(Vector(-62, -86, 0), Vector(-80, -104, 0)),
    Part.LineSegment(Vector(-80, -104, 0), Vector(-81, -117, 0)),
    Part.LineSegment(Vector(-81, -117, 0), Vector(-50, -85, 0)),
    Part.LineSegment(Vector(-50, -85, 0), Vector(-62, -86, 0)),
], False)
sketch8.addConstraint([
    Sketcher.Constraint("Coincident", 0, 2, 1, 1),
    Sketcher.Constraint("Coincident", 1, 2, 2, 1),
    Sketcher.Constraint("Coincident", 2, 2, 3, 1),
    Sketcher.Constraint("Coincident", 3, 2, 0, 1),
    Sketcher.Constraint("Parallel", 0, 2),
    Sketcher.Constraint("Equal", 1, 3),
    Sketcher.Constraint("Angle", 0, Q("-135 deg")),
    Sketcher.Constraint("Distance", 0, Q("25 mm")),
    Sketcher.Constraint("Distance", 2, Q("45 mm")),
    Sketcher.Constraint("DistanceY", 3, 2, -1, 1, Q("86.387302 mm")),
    Sketcher.Constraint("Distance", 1, Q("12.806248 mm")),
    Sketcher.Constraint("DistanceX", 0, 2, -1, 1, Q("80.023341 mm")),
])
pocket7 = body.newObject("PartDesign::Pocket", "Pocket006")
pocket7.Profile = sketch8
pocket7.Length = 8
pocket7.Reversed = True

sketch9 = body.newObject("Sketcher::SketchObject", "Sketch008")
sketch9.AttachmentSupport = (doc.getObject("XY_Plane"), [""])
sketch9.MapMode = "FlatFace"
sketch9.AttachmentOffset = App.Placement(Vector(0, 0, -1), App.Rotation())
sketch9.addGeometry([
    Part.LineSegment(Vector(86, -62, 0), Vector(104, -80, 0)),
    Part.LineSegment(Vector(104, -80, 0), Vector(117, -81, 0)),
    Part.LineSegment(Vector(117, -81, 0), Vector(85, -50, 0)),
    Part.LineSegment(Vector(85, -50, 0), Vector(86, -62, 0)),
], False)
sketch9.addConstraint([
    Sketcher.Constraint("Coincident", 0, 2, 1, 1),
    Sketcher.Constraint("Coincident", 1, 2, 2, 1),
    Sketcher.Constraint("Coincident", 2, 2, 3, 1),
    Sketcher.Constraint("Coincident", 3, 2, 0, 1),
    Sketcher.Constraint("Parallel", 0, 2),
    Sketcher.Constraint("Equal", 1, 3),
    Sketcher.Constraint("Angle", 0, Q("-45 deg")),
    Sketcher.Constraint("Distance", 0, Q("25 mm")),
    Sketcher.Constraint("Distance", 2, Q("45 mm")),
    Sketcher.Constraint("DistanceX", -1, 1, 3, 2, Q("86.387302 mm")),
    Sketcher.Constraint("Distance", 1, Q("12.806248 mm")),
    Sketcher.Constraint("DistanceY", 0, 2, -1, 1, Q("80.023341 mm")),
])
pocket8 = body.newObject("PartDesign::Pocket", "Pocket007")
pocket8.Profile = sketch9
pocket8.Length = 8
pocket8.Reversed = True

sketch10 = body.newObject("Sketcher::SketchObject", "Sketch009")
sketch10.AttachmentSupport = (doc.getObject("XY_Plane"), [""])
sketch10.MapMode = "FlatFace"
sketch10.AttachmentOffset = App.Placement(Vector(0, 0, -1), App.Rotation())
sketch10.addGeometry([
    Part.LineSegment(Vector(62, 86, 0), Vector(80, 104, 0)),
    Part.LineSegment(Vector(80, 104, 0), Vector(81, 117, 0)),
    Part.LineSegment(Vector(81, 117, 0), Vector(50, 85, 0)),
    Part.LineSegment(Vector(50, 85, 0), Vector(62, 86, 0)),
], False)
sketch10.addConstraint([
    Sketcher.Constraint("Coincident", 0, 2, 1, 1),
    Sketcher.Constraint("Coincident", 1, 2, 2, 1),
    Sketcher.Constraint("Coincident", 2, 2, 3, 1),
    Sketcher.Constraint("Coincident", 3, 2, 0, 1),
    Sketcher.Constraint("Parallel", 0, 2),
    Sketcher.Constraint("Equal", 1, 3),
    Sketcher.Constraint("Angle", 0, Q("45 deg")),
    Sketcher.Constraint("Distance", 0, Q("25 mm")),
    Sketcher.Constraint("Distance", 2, Q("45 mm")),
    Sketcher.Constraint("DistanceY", -1, 1, 3, 2, Q("86.387302 mm")),
    Sketcher.Constraint("Distance", 1, Q("12.806248 mm")),
    Sketcher.Constraint("DistanceX", -1, 1, 0, 2, Q("80.023341 mm")),
])
pocket9 = body.newObject("PartDesign::Pocket", "Pocket008")
pocket9.Profile = sketch10
pocket9.Length = 8
pocket9.Reversed = True
doc.recompute()

fillet3 = body.newObject("PartDesign::Fillet", "Fillet002")
fillet3.Base = (pocket9, edges_at(pocket9, [
    (-80.023, 104.065, 3),
    (-81.438, 116.793, 3),
    (-49.618, 84.973, 3),
    (-62.346, 86.387, 3),
    (-116.793, 81.438, 3),
    (-104.065, 80.023, 3),
    (-86.387, 62.346, 3),
    (-84.973, 49.618, 3),
    (-116.793, -81.438, 3),
    (-86.387, -62.346, 3),
    (-104.065, -80.023, 3),
    (-84.973, -49.618, 3),
    (81.438, -116.793, 3),
    (62.346, -86.387, 3),
    (80.023, -104.065, 3),
    (49.618, -84.973, 3),
    (116.793, 81.438, 3),
    (86.387, 62.346, 3),
    (104.065, 80.023, 3),
    (84.973, 49.618, 3),
    (-80.023, -104.065, 3),
    (-49.618, -84.973, 3),
    (-81.438, -116.793, 3),
    (-62.346, -86.387, 3),
    (104.065, -80.023, 3),
    (84.973, -49.618, 3),
    (116.793, -81.438, 3),
    (86.387, -62.346, 3),
    (80.023, 104.065, 3),
    (49.618, 84.973, 3),
    (81.438, 116.793, 3),
    (62.346, 86.387, 3),
]))
fillet3.Radius = 10

doc.recompute()
